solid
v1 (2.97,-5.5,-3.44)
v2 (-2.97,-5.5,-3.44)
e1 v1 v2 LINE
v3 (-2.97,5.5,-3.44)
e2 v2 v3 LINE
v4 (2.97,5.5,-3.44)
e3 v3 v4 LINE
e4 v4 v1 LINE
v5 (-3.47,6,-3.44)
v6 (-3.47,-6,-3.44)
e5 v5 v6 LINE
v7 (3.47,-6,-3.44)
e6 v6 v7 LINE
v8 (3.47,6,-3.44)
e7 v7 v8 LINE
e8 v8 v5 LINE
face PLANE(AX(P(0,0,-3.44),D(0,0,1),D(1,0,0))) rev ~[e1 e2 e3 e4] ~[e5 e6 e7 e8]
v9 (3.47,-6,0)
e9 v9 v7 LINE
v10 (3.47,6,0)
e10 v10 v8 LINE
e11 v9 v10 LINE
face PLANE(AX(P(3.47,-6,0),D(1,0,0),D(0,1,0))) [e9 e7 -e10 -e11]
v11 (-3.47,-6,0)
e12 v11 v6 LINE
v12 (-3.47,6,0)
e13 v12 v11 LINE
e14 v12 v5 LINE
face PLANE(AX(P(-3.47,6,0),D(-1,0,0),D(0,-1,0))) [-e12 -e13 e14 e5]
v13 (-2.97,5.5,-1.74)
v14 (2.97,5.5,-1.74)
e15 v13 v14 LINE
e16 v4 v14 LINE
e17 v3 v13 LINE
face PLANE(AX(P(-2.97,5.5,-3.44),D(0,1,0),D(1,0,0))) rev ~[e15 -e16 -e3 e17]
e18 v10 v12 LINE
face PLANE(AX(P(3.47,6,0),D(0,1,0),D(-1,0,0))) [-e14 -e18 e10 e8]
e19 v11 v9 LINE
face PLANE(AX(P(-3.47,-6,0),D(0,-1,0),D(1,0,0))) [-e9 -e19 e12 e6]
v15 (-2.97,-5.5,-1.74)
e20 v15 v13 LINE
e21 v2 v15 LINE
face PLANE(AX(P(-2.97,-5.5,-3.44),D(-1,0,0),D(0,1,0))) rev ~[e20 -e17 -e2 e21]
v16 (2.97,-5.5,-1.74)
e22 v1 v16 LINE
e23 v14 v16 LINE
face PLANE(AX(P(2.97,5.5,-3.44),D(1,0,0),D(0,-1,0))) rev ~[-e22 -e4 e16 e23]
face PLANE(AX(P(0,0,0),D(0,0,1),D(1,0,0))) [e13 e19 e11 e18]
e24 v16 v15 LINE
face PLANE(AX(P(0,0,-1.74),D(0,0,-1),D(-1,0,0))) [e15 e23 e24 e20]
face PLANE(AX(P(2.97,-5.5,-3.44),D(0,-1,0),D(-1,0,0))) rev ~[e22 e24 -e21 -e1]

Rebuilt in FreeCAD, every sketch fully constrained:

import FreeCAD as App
import Part
import Sketcher
Q = App.Units.Quantity


def add_polygon(sketch, points):
    """Adds a closed chain of lines whose ends are joined by coincident constraints."""
    first, n = sketch.GeometryCount, len(points)
    for a, b in zip(points, points[1:] + points[:1]):
        sketch.addGeometry(Part.LineSegment(App.Vector(*a, 0), App.Vector(*b, 0)), False)
    for i in range(n):
        sketch.addConstraint(Sketcher.Constraint("Coincident", first + i, 2, first + (i + 1) % n, 1))

doc = App.newDocument("Part")
body = doc.addObject("PartDesign::Body", "Body")

sketch1 = body.newObject("Sketcher::SketchObject", "Sketch")
sketch1.AttachmentSupport = (doc.getObject("XY_Plane"), [""])
sketch1.MapMode = "FlatFace"
add_polygon(sketch1, [(-3, 6), (-3, -6), (3, -6), (3, 6)])
sketch1.addConstraint([
    Sketcher.Constraint("Vertical", 0),
    Sketcher.Constraint("Horizontal", 1),
    Sketcher.Constraint("Vertical", 2),
    Sketcher.Constraint("Horizontal", 3),
    Sketcher.Constraint("Symmetric", 0, 2, 2, 2, -1, 1),
    Sketcher.Constraint("DistanceY", 0, 2, 0, 1, Q("12 mm")),
    Sketcher.Constraint("DistanceX", 0, 2, -1, 1, Q("3.47 mm")),
])
pad1 = body.newObject("PartDesign::Pad", "Pad")
pad1.Profile = sketch1
pad1.Length = 3.44
pad1.Reversed = True

sketch2 = body.newObject("Sketcher::SketchObject", "Sketch001")
sketch2.AttachmentSupport = (doc.getObject("XY_Plane"), [""])
sketch2.MapMode = "FlatFace"
sketch2.AttachmentOffset = App.Placement(App.Vector(0, 0, -3.44), App.Rotation())
add_polygon(sketch2, [(-3, -6), (-3, 6), (3, 6), (3, -6)])
sketch2.addConstraint([
    Sketcher.Constraint("Vertical", 0),
    Sketcher.Constraint("Horizontal", 1),
    Sketcher.Constraint("Vertical", 2),
    Sketcher.Constraint("Horizontal", 3),
    Sketcher.Constraint("Symmetric", 0, 2, 2, 2, -1, 1),
    Sketcher.Constraint("DistanceY", 0, 1, 0, 2, Q("11 mm")),
    Sketcher.Constraint("DistanceX", 1, 1, 1, 2, Q("5.94 mm")),
])
pocket1 = body.newObject("PartDesign::Pocket", "Pocket")
pocket1.Profile = sketch2
pocket1.Length = 1.7
pocket1.Reversed = True

doc.recompute()
